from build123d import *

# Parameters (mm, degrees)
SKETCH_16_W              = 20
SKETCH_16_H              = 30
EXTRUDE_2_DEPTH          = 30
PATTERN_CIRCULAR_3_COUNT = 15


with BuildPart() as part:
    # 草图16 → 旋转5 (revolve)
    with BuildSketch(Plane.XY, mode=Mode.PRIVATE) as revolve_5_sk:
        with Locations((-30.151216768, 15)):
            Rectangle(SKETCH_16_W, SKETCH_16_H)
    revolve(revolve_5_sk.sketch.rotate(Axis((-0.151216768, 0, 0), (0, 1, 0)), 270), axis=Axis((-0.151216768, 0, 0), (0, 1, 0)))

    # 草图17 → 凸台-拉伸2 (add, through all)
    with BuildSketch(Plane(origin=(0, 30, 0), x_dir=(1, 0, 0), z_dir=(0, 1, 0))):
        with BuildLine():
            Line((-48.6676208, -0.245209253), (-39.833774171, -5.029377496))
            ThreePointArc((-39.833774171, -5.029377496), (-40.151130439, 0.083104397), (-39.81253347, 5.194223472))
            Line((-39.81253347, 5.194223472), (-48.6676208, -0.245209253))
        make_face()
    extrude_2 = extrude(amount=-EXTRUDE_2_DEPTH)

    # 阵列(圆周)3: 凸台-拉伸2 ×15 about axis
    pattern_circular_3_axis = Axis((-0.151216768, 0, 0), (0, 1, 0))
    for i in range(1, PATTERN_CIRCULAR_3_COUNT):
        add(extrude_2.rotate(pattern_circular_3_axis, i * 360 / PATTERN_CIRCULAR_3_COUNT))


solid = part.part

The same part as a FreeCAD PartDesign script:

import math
import FreeCAD as App
import Part
import Sketcher
Q = App.Units.Quantity


def add_polygon(sketch, points):
    """Adds a closed chain of lines whose ends are joined by coincident constraints."""
    first, n = sketch.GeometryCount, len(points)
    for a, b in zip(points, points[1:] + points[:1]):
        sketch.addGeometry(Part.LineSegment(App.Vector(*a, 0), App.Vector(*b, 0)), False)
    for i in range(n):
        sketch.addConstraint(Sketcher.Constraint("Coincident", first + i, 2, first + (i + 1) % n, 1))

doc = App.newDocument("Part")
params = doc.addObject("Spreadsheet::Sheet", "Params")
for row, (alias, value) in enumerate([
    ("sketch1_width", "20 mm"),
    ("sketch1_height", "30 mm"),
    ("revolution_angle", "360 deg"),
    ("sketch2_radius", "40 mm"),
    ("pad1_length", "30 mm"),
], start=1):
    params.set(f"A{row}", alias)
    params.set(f"B{row}", "=" + value)
    params.setAlias(f"B{row}", alias)

body = doc.addObject("PartDesign::Body", "Body")

# Sketch on XY plane
sketch1 = body.newObject("Sketcher::SketchObject", "Sketch")
sketch1.AttachmentSupport = (doc.getObject("XY_Plane"), [""])
sketch1.MapMode = "FlatFace"
add_polygon(sketch1, [(-40.151217, 30), (-40.151217, 0), (-20.151217, 0), (-20.151217, 30)])  # lines 0-3
sketch1.addGeometry(Part.LineSegment(App.Vector(-0.151217, 0, 0), App.Vector(-0.151217, 30, 0)), True)  # axis
sketch1.addConstraint([
    Sketcher.Constraint("Vertical", 0),
    Sketcher.Constraint("Horizontal", 1),
    Sketcher.Constraint("Vertical", 2),
    Sketcher.Constraint("Horizontal", 3),
    Sketcher.Constraint("Vertical", 4),
    Sketcher.Constraint("PointOnObject", 0, 2, -1),
    Sketcher.Constraint("PointOnObject", 4, 1, -1),
    Sketcher.Constraint("Horizontal", 3, 2, 4, 2),
    Sketcher.Constraint("DistanceX", 1, 1, 1, 2, Q("20 mm")),
    Sketcher.Constraint("DistanceY", 0, 2, 0, 1, Q("30 mm")),
    Sketcher.Constraint("DistanceX", 1, 2, 4, 1, Q("20 mm")),
    Sketcher.Constraint("DistanceX", 0, 2, -1, 1, Q("40.151217 mm")),
])
sketch1.setExpression("Constraints[12]", "Params.sketch1_width")
sketch1.setExpression("Constraints[13]", "Params.sketch1_height")
revolution = body.newObject("PartDesign::Revolution", "Revolution")
revolution.Profile = sketch1
revolution.ReferenceAxis = (sketch1, ["Axis0"])
revolution.setExpression("Angle", "Params.revolution_angle")

# Sketch on XZ plane
sketch2 = body.newObject("Sketcher::SketchObject", "Sketch001")
sketch2.AttachmentSupport = (doc.getObject("XZ_Plane"), [""])
sketch2.MapMode = "FlatFace"
sketch2.AttachmentOffset = App.Placement(App.Vector(0, 0, -30), App.Rotation())
sketch2.addGeometry([
    Part.LineSegment(App.Vector(-48.667621, 0.245209, 0), App.Vector(-39.833774, 5.029377, 0)),
    Part.ArcOfCircle(Part.Circle(App.Vector(-0.151217, 0, 0), App.Vector(0, 0, 1), 40), math.radians(172.776829), math.radians(187.461247)),
    Part.LineSegment(App.Vector(-39.812533, -5.194223, 0), App.Vector(-48.667621, 0.245209, 0)),
], False)
sketch2.addConstraint([
    Sketcher.Constraint("Coincident", 0, 2, 1, 1),
    Sketcher.Constraint("Coincident", 1, 2, 2, 1),
    Sketcher.Constraint("Coincident", 2, 2, 0, 1),
    Sketcher.Constraint("PointOnObject", 1, 3, -1),
    Sketcher.Constraint("Radius", 1, Q("40 mm")),
    Sketcher.Constraint("DistanceY", 1, 2, 0, 2, Q("10.223601 mm")),
    Sketcher.Constraint("Distance", 0, Q("10.046149 mm")),
    Sketcher.Constraint("DistanceX", 2, 2, -1, 1, Q("48.667621 mm")),
    Sketcher.Constraint("DistanceY", -1, 1, 2, 2, Q("0.245209 mm")),
    Sketcher.Constraint("DistanceX", 0, 2, 1, 2, Q("0.021241 mm")),
])
sketch2.setExpression("Constraints[4]", "Params.sketch2_radius")
pad1 = body.newObject("PartDesign::Pad", "Pad")
pad1.Profile = sketch2
pad1.setExpression("Length", "Params.pad1_length")
doc.recompute()

datumline = body.newObject("PartDesign::Line", "DatumLine")
datumline.Placement = App.Placement(App.Vector(-0.151217, 0, 0), App.Rotation(App.Vector(0, 0, 1), App.Vector(0, 1, 0)))
polarpattern = body.newObject("PartDesign::PolarPattern", "PolarPattern")
polarpattern.Originals = [pad1]
polarpattern.Axis = (datumline, [""])
polarpattern.Angle = 360
polarpattern.Occurrences = 15
body.Tip = polarpattern

doc.recompute()
